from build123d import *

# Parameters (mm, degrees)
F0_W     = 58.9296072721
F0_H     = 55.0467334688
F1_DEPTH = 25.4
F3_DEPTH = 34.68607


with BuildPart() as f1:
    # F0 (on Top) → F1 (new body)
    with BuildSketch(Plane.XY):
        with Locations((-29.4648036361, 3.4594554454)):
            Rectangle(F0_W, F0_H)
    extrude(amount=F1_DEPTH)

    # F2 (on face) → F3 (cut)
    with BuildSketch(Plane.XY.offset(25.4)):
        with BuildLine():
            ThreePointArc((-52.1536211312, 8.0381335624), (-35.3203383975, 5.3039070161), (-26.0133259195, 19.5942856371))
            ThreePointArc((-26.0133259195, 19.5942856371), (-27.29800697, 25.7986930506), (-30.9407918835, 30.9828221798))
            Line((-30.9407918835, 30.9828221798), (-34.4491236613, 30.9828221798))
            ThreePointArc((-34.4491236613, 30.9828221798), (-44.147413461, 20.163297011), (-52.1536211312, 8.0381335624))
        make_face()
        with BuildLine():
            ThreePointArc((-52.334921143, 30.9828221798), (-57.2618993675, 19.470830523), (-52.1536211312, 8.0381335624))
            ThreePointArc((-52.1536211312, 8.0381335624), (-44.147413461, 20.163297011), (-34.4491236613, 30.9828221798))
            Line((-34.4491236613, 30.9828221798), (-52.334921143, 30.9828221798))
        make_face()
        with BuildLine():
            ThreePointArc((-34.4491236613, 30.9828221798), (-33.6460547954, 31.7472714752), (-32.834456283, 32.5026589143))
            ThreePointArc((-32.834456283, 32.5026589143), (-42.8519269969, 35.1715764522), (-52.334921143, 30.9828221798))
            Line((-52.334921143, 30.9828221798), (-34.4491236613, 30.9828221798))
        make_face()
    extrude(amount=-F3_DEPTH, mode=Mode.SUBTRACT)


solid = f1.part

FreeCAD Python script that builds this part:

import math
import FreeCAD as App
import Part
import Sketcher

V = App.Vector
Q = App.Units.Quantity


def add_polygon(sketch, points):
    """Adds a closed chain of lines whose ends are joined by coincident constraints."""
    first, n = sketch.GeometryCount, len(points)
    for a, b in zip(points, points[1:] + points[:1]):
        sketch.addGeometry(Part.LineSegment(App.Vector(*a, 0), App.Vector(*b, 0)), False)
    for i in range(n):
        sketch.addConstraint(Sketcher.Constraint("Coincident", first + i, 2, first + (i + 1) % n, 1))

doc = App.newDocument("Part")
body = doc.addObject("PartDesign::Body", "Body")

sketch1 = body.newObject("Sketcher::SketchObject", "Sketch")
sketch1.AttachmentSupport = (doc.getObject("XY_Plane"), [""])
sketch1.MapMode = "FlatFace"
add_polygon(sketch1, [(-59, 31), (-59, -24), (0, -24), (0, 31)])
sketch1.addConstraint([
    Sketcher.Constraint("Vertical", 0),
    Sketcher.Constraint("Horizontal", 1),
    Sketcher.Constraint("Vertical", 2),
    Sketcher.Constraint("Horizontal", 3),
    Sketcher.Constraint("PointOnObject", 1, 2, -2),
    Sketcher.Constraint("DistanceX", 1, 1, 1, 2, Q("58.929607 mm")),
    Sketcher.Constraint("DistanceY", 0, 2, 0, 1, Q("55.046733 mm")),
    Sketcher.Constraint("DistanceY", 0, 2, -1, 1, Q("24.063911 mm")),
])
pad1 = body.newObject("PartDesign::Pad", "Pad")
pad1.Profile = sketch1
pad1.Length = Q("1 in")

sketch2 = body.newObject("Sketcher::SketchObject", "Sketch001")
sketch2.AttachmentSupport = (doc.getObject("XY_Plane"), [""])
sketch2.MapMode = "FlatFace"
sketch2.AttachmentOffset = App.Placement(V(0, 0, 1 * 25.4), App.Rotation())
sketch2.addGeometry([
    Part.ArcOfCircle(Part.Circle(V(-41.6, 19.6, 0), V(0, 0, 1), 15.6), math.radians(-132), math.radians(47)),
    Part.LineSegment(V(-30.9, 31, 0), V(-34.4, 31, 0)),
    Part.ArcOfCircle(Part.Circle(V(34.1, -40.2, 0), V(0, 0, 1), 98.8), math.radians(132.62), math.radians(133.91)),
    Part.ArcOfCircle(Part.Circle(V(-41.6, 19.6, 0), V(0, 0, 1), 15.6), math.radians(56), math.radians(133)),
    Part.ArcOfCircle(Part.Circle(V(-41.6, 19.6, 0), V(0, 0, 1), 15.6), math.radians(133), math.radians(228)),
], False)
sketch2.addConstraint([
    Sketcher.Constraint("Coincident", 0, 2, 1, 1),
    Sketcher.Constraint("Coincident", 1, 2, 2, 2),
    Sketcher.Constraint("Coincident", 2, 1, 3, 1),
    Sketcher.Constraint("Tangent", 3, 2, 4, 1),
    Sketcher.Constraint("Tangent", 4, 2, 0, 1),
    Sketcher.Constraint("Horizontal", 1),
    Sketcher.Constraint("Coincident", 3, 3, 0, 3),
    Sketcher.Constraint("Horizontal", 1, 2, 3, 2),
    Sketcher.Constraint("Radius", 2, Q("98.7807 mm")),
    Sketcher.Constraint("Radius", 0, Q("15.624531 mm")),
    Sketcher.Constraint("DistanceX", 1, 2, 1, 1, Q("3.508332 mm")),
    Sketcher.Constraint("DistanceX", 0, 3, 2, 1, Q("8.8034 mm")),
    Sketcher.Constraint("DistanceX", 3, 2, 4, 2, Q("0.1813 mm")),
    Sketcher.Constraint("DistanceX", -1, 1, 2, 3, Q("34.058288 mm")),
    Sketcher.Constraint("DistanceX", 0, 2, -1, 1, Q("30.940792 mm")),
    Sketcher.Constraint("DistanceY", -1, 1, 2, 1, Q("32.502659 mm")),
])
pocket1 = body.newObject("PartDesign::Pocket", "Pocket")
pocket1.Profile = sketch2
pocket1.Length = 34.68607

doc.recompute()
